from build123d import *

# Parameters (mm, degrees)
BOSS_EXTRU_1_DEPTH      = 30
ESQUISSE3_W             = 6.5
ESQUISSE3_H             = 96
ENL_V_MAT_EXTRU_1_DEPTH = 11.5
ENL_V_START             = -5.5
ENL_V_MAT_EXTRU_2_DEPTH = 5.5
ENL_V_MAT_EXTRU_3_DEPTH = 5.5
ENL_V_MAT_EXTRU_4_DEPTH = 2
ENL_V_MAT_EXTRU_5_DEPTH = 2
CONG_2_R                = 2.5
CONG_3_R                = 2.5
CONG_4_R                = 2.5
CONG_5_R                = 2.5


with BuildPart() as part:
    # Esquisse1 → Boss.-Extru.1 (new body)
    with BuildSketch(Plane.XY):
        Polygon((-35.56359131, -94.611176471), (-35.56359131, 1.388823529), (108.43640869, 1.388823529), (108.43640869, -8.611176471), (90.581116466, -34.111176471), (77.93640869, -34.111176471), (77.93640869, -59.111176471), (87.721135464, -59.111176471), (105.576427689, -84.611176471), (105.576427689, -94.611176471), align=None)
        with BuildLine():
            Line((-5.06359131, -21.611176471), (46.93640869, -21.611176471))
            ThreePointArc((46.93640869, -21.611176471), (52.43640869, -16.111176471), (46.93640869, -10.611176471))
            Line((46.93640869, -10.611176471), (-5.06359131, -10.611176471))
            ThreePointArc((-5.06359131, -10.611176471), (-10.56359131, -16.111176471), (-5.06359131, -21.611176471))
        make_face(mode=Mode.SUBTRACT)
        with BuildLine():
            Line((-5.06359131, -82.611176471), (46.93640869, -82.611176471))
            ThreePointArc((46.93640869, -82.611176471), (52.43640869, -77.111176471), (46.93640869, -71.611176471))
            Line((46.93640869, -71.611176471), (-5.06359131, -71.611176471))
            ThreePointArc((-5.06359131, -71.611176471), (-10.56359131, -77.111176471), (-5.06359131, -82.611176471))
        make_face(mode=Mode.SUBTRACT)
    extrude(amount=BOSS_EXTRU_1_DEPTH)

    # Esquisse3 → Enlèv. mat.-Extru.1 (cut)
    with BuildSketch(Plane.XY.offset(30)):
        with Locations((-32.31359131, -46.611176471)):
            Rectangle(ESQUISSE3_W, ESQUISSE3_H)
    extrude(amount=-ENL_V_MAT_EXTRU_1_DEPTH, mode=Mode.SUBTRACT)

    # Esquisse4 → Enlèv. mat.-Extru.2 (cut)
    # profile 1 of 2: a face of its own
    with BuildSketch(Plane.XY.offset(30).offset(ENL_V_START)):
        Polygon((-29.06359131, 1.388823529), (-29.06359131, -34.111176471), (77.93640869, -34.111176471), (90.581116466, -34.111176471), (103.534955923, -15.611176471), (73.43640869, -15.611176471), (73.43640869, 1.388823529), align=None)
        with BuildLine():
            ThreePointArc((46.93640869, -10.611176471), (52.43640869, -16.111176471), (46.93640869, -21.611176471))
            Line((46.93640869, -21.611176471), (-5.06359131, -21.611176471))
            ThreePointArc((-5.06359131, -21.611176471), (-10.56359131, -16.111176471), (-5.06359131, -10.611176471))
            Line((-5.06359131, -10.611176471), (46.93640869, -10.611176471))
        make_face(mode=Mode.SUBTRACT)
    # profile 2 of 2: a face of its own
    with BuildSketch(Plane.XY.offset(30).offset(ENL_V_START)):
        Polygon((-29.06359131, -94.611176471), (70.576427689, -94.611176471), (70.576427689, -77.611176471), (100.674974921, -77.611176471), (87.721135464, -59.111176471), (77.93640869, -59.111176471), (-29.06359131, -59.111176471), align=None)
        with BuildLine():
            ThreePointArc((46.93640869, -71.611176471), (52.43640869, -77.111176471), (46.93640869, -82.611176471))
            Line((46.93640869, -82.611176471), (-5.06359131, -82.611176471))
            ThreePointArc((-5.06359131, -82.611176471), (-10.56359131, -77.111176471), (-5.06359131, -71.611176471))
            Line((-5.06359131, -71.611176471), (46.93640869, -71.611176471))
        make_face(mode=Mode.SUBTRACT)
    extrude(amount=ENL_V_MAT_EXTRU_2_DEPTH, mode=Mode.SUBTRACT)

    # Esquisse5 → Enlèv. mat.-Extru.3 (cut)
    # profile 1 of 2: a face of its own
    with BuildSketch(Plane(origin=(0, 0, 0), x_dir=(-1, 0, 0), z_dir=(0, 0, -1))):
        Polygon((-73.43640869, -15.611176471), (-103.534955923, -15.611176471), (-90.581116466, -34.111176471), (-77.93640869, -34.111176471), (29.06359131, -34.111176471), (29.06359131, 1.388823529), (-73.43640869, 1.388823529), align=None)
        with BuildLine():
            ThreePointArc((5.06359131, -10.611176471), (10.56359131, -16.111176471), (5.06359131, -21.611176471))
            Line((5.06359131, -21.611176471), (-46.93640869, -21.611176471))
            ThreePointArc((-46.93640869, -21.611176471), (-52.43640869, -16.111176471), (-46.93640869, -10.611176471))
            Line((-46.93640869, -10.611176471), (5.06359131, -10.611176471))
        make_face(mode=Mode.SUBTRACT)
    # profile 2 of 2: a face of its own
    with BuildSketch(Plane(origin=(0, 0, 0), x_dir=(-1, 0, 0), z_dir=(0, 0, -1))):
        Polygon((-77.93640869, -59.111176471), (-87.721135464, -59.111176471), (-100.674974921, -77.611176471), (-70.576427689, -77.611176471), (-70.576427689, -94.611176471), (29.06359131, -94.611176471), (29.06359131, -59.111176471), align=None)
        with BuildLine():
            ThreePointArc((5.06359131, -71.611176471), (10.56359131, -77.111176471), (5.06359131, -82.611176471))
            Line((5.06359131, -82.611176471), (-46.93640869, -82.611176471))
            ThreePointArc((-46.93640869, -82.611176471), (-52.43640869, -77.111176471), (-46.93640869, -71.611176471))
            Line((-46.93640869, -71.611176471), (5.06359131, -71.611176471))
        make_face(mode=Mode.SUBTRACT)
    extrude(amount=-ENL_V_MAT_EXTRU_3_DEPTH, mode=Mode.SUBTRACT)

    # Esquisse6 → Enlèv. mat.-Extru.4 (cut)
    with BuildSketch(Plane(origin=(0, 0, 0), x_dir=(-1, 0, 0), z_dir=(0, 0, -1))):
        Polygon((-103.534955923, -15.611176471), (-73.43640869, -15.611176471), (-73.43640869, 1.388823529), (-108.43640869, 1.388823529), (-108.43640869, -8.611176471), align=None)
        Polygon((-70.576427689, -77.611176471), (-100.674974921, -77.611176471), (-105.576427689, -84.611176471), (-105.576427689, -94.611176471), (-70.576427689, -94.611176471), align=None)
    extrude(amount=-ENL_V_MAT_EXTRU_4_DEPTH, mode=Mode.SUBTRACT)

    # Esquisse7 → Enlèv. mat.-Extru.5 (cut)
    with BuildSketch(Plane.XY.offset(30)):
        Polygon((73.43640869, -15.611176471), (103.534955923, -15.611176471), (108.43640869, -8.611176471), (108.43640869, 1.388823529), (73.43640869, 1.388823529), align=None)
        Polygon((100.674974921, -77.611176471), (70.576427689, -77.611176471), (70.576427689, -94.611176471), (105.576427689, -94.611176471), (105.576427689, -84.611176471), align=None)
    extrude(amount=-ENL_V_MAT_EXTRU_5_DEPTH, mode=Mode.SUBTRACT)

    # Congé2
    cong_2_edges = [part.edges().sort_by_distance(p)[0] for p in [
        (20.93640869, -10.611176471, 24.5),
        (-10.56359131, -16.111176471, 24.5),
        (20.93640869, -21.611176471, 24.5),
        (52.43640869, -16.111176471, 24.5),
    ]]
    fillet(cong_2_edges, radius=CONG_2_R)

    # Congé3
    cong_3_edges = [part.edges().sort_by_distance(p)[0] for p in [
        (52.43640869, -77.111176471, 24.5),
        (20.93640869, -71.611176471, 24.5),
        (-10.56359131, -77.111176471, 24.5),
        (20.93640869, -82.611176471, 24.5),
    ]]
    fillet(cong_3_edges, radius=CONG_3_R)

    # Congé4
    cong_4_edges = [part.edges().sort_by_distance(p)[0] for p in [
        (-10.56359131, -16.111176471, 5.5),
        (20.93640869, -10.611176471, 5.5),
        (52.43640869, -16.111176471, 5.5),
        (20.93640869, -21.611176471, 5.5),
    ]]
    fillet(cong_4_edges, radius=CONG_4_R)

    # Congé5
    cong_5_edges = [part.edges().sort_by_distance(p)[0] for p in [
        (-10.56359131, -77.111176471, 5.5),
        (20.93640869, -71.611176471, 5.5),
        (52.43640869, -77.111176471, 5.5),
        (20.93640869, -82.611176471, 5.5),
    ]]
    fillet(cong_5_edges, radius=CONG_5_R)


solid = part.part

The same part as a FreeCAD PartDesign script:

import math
import FreeCAD as App
import Part
import Sketcher
from FreeCAD import Vector
Q = App.Units.Quantity


def edges_at(feature, points):
    """Names of the edges that pass closest to the given points."""
    edges = feature.Shape.Edges
    near = lambda p: min(range(len(edges)), key=lambda i: edges[i].distToShape(Part.Vertex(*p))[0])
    return sorted({f"Edge{near(p) + 1}" for p in points})

doc = App.newDocument("Part")
body = doc.addObject("PartDesign::Body", "Body")

sketch1 = doc.addObject("Sketcher::SketchObject", "Sketch")
body.addObject(sketch1)
sketch1.AttachmentSupport = (doc.XY_Plane, [""])
sketch1.MapMode = "FlatFace"
sketch1.addGeometry(Part.LineSegment(Vector(-36, 1, 0), Vector(-36, -95, 0)), False)
sketch1.addGeometry(Part.LineSegment(Vector(-36, -95, 0), Vector(106, -95, 0)), False)
sketch1.addGeometry(Part.LineSegment(Vector(106, -95, 0), Vector(106, -85, 0)), False)
sketch1.addGeometry(Part.LineSegment(Vector(106, -85, 0), Vector(88, -59, 0)), False)
sketch1.addGeometry(Part.LineSegment(Vector(88, -59, 0), Vector(78, -59, 0)), False)
sketch1.addGeometry(Part.LineSegment(Vector(78, -59, 0), Vector(78, -34, 0)), False)
sketch1.addGeometry(Part.LineSegment(Vector(78, -34, 0), Vector(91, -34, 0)), False)
sketch1.addGeometry(Part.LineSegment(Vector(91, -34, 0), Vector(108, -9, 0)), False)
sketch1.addGeometry(Part.LineSegment(Vector(108, -9, 0), Vector(108, 1, 0)), False)
sketch1.addGeometry(Part.LineSegment(Vector(108, 1, 0), Vector(-36, 1, 0)), False)
sketch1.addGeometry(Part.ArcOfCircle(Part.Circle(Vector(-5, -77, 0), Vector(0, 0, 1), 6), math.radians(90), math.radians(270)), False)
sketch1.addGeometry(Part.LineSegment(Vector(-5, -72, 0), Vector(47, -72, 0)), False)
sketch1.addGeometry(Part.ArcOfCircle(Part.Circle(Vector(47, -77, 0), Vector(0, 0, 1), 6), math.radians(-90), math.radians(90)), False)
sketch1.addGeometry(Part.LineSegment(Vector(47, -83, 0), Vector(-5, -83, 0)), False)
sketch1.addGeometry(Part.ArcOfCircle(Part.Circle(Vector(-5, -16, 0), Vector(0, 0, 1), 6), math.radians(90), math.radians(270)), False)
sketch1.addGeometry(Part.LineSegment(Vector(-5, -11, 0), Vector(47, -11, 0)), False)
sketch1.addGeometry(Part.ArcOfCircle(Part.Circle(Vector(47, -16, 0), Vector(0, 0, 1), 6), math.radians(-90), math.radians(90)), False)
sketch1.addGeometry(Part.LineSegment(Vector(47, -22, 0), Vector(-5, -22, 0)), False)
sketch1.addConstraint(Sketcher.Constraint("Coincident", 0, 2, 1, 1))
sketch1.addConstraint(Sketcher.Constraint("Coincident", 1, 2, 2, 1))
sketch1.addConstraint(Sketcher.Constraint("Coincident", 2, 2, 3, 1))
sketch1.addConstraint(Sketcher.Constraint("Coincident", 3, 2, 4, 1))
sketch1.addConstraint(Sketcher.Constraint("Coincident", 4, 2, 5, 1))
sketch1.addConstraint(Sketcher.Constraint("Coincident", 5, 2, 6, 1))
sketch1.addConstraint(Sketcher.Constraint("Coincident", 6, 2, 7, 1))
sketch1.addConstraint(Sketcher.Constraint("Coincident", 7, 2, 8, 1))
sketch1.addConstraint(Sketcher.Constraint("Coincident", 8, 2, 9, 1))
sketch1.addConstraint(Sketcher.Constraint("Coincident", 9, 2, 0, 1))
sketch1.addConstraint(Sketcher.Constraint("Tangent", 10, 1, 11, 1))
sketch1.addConstraint(Sketcher.Constraint("Tangent", 11, 2, 12, 2))
sketch1.addConstraint(Sketcher.Constraint("Tangent", 12, 1, 13, 1))
sketch1.addConstraint(Sketcher.Constraint("Tangent", 13, 2, 10, 2))
sketch1.addConstraint(Sketcher.Constraint("Tangent", 14, 1, 15, 1))
sketch1.addConstraint(Sketcher.Constraint("Tangent", 15, 2, 16, 2))
sketch1.addConstraint(Sketcher.Constraint("Tangent", 16, 1, 17, 1))
sketch1.addConstraint(Sketcher.Constraint("Tangent", 17, 2, 14, 2))
sketch1.addConstraint(Sketcher.Constraint("Vertical", 0))
sketch1.addConstraint(Sketcher.Constraint("Horizontal", 1))
sketch1.addConstraint(Sketcher.Constraint("Vertical", 2))
sketch1.addConstraint(Sketcher.Constraint("Horizontal", 4))
sketch1.addConstraint(Sketcher.Constraint("Vertical", 5))
sketch1.addConstraint(Sketcher.Constraint("Horizontal", 6))
sketch1.addConstraint(Sketcher.Constraint("Vertical", 8))
sketch1.addConstraint(Sketcher.Constraint("Horizontal", 9))
sketch1.addConstraint(Sketcher.Constraint("Horizontal", 11))
sketch1.addConstraint(Sketcher.Constraint("Horizontal", 13))
sketch1.addConstraint(Sketcher.Constraint("Horizontal", 15))
sketch1.addConstraint(Sketcher.Constraint("Horizontal", 17))
sketch1.addConstraint(Sketcher.Constraint("Equal", 12, 14))
sketch1.addConstraint(Sketcher.Constraint("Vertical", 10, 3, 14, 3))
sketch1.addConstraint(Sketcher.Constraint("Vertical", 12, 3, 16, 3))
sketch1.addConstraint(Sketcher.Constraint("Equal", 2, 8))
sketch1.addConstraint(Sketcher.Constraint("Equal", 3, 7))
sketch1.addConstraint(Sketcher.Constraint("Radius", 10, 5.5))
sketch1.addConstraint(Sketcher.Constraint("DistanceX", 9, 2, 9, 1, 144.0))
sketch1.addConstraint(Sketcher.Constraint("DistanceX", 11, 1, 11, 2, 52.0))
sketch1.addConstraint(Sketcher.Constraint("DistanceY", 0, 2, 0, 1, 96.0))
sketch1.addConstraint(Sketcher.Constraint("DistanceY", 2, 1, 2, 2, 10.0))
sketch1.addConstraint(Sketcher.Constraint("DistanceY", 5, 1, 5, 2, 25.0))
sketch1.addConstraint(Sketcher.Constraint("Angle", 3, Q("125 deg")))
sketch1.addConstraint(Sketcher.Constraint("Angle", 7, Q("55 deg")))
sketch1.addConstraint(Sketcher.Constraint("DistanceY", 10, 3, 14, 3, 61.0))
sketch1.addConstraint(Sketcher.Constraint("DistanceY", 12, 3, 3, 2, 18.0))
sketch1.addConstraint(Sketcher.Constraint("DistanceX", 12, 3, 4, 2, 31.0))
sketch1.addConstraint(Sketcher.Constraint("DistanceX", 0, 2, 10, 3, 30.5))
sketch1.addConstraint(Sketcher.Constraint("DistanceX", 1, 1, 1, 2, 141.140019))
sketch1.addConstraint(Sketcher.Constraint("DistanceX", 10, 3, -1, 1, 5.063591))
sketch1.addConstraint(Sketcher.Constraint("DistanceY", 10, 3, -1, 1, 77.111176))
pad1 = doc.addObject("PartDesign::Pad", "Pad")
body.addObject(pad1)
pad1.Profile = sketch1
pad1.Length = 30

sketch2 = doc.addObject("Sketcher::SketchObject", "Sketch001")
body.addObject(sketch2)
sketch2.AttachmentSupport = (doc.XY_Plane, [""])
sketch2.MapMode = "FlatFace"
sketch2.AttachmentOffset = App.Placement(Vector(0, 0, 30), App.Rotation())
sketch2.addGeometry(Part.LineSegment(Vector(-36, 1, 0), Vector(-36, -95, 0)), False)
sketch2.addGeometry(Part.LineSegment(Vector(-36, -95, 0), Vector(-29, -95, 0)), False)
sketch2.addGeometry(Part.LineSegment(Vector(-29, -95, 0), Vector(-29, 1, 0)), False)
sketch2.addGeometry(Part.LineSegment(Vector(-29, 1, 0), Vector(-36, 1, 0)), False)
sketch2.addConstraint(Sketcher.Constraint("Coincident", 0, 2, 1, 1))
sketch2.addConstraint(Sketcher.Constraint("Coincident", 1, 2, 2, 1))
sketch2.addConstraint(Sketcher.Constraint("Coincident", 2, 2, 3, 1))
sketch2.addConstraint(Sketcher.Constraint("Coincident", 3, 2, 0, 1))
sketch2.addConstraint(Sketcher.Constraint("Vertical", 0))
sketch2.addConstraint(Sketcher.Constraint("Horizontal", 1))
sketch2.addConstraint(Sketcher.Constraint("Vertical", 2))
sketch2.addConstraint(Sketcher.Constraint("Horizontal", 3))
sketch2.addConstraint(Sketcher.Constraint("DistanceY", 0, 2, 0, 1, 96.0))
sketch2.addConstraint(Sketcher.Constraint("DistanceX", 1, 1, 1, 2, 6.5))
sketch2.addConstraint(Sketcher.Constraint("DistanceX", 0, 2, -1, 1, 35.563591))
sketch2.addConstraint(Sketcher.Constraint("DistanceY", 0, 2, -1, 1, 94.611176))
pocket1 = doc.addObject("PartDesign::Pocket", "Pocket")
body.addObject(pocket1)
pocket1.Profile = sketch2
pocket1.Length = 11.5

sketch3 = doc.addObject("Sketcher::SketchObject", "Sketch002")
body.addObject(sketch3)
sketch3.AttachmentSupport = (doc.XY_Plane, [""])
sketch3.MapMode = "FlatFace"
sketch3.AttachmentOffset = App.Placement(Vector(0, 0, 24.5), App.Rotation())
sketch3.addGeometry(Part.LineSegment(Vector(-29, 1, 0), Vector(-29, -34, 0)), False)
sketch3.addGeometry(Part.LineSegment(Vector(-29, -34, 0), Vector(91, -34, 0)), False)
sketch3.addGeometry(Part.LineSegment(Vector(91, -34, 0), Vector(104, -16, 0)), False)
sketch3.addGeometry(Part.LineSegment(Vector(104, -16, 0), Vector(73, -16, 0)), False)
sketch3.addGeometry(Part.LineSegment(Vector(73, -16, 0), Vector(73, 1, 0)), False)
sketch3.addGeometry(Part.LineSegment(Vector(73, 1, 0), Vector(-29, 1, 0)), False)
sketch3.addGeometry(Part.LineSegment(Vector(-5, -11, 0), Vector(47, -11, 0)), False)
sketch3.addGeometry(Part.ArcOfCircle(Part.Circle(Vector(47, -16, 0), Vector(0, 0, 1), 6), math.radians(-90), math.radians(90)), False)
sketch3.addGeometry(Part.LineSegment(Vector(47, -22, 0), Vector(-5, -22, 0)), False)
sketch3.addGeometry(Part.ArcOfCircle(Part.Circle(Vector(-5, -16, 0), Vector(0, 0, 1), 6), math.radians(90), math.radians(270)), False)
sketch3.addGeometry(Part.LineSegment(Vector(-29, -95, 0), Vector(71, -95, 0)), False)
sketch3.addGeometry(Part.LineSegment(Vector(71, -95, 0), Vector(71, -78, 0)), False)
sketch3.addGeometry(Part.LineSegment(Vector(71, -78, 0), Vector(101, -78, 0)), False)
sketch3.addGeometry(Part.LineSegment(Vector(101, -78, 0), Vector(88, -59, 0)), False)
sketch3.addGeometry(Part.LineSegment(Vector(88, -59, 0), Vector(-29, -59, 0)), False)
sketch3.addGeometry(Part.LineSegment(Vector(-29, -59, 0), Vector(-29, -95, 0)), False)
sketch3.addGeometry(Part.LineSegment(Vector(-5, -72, 0), Vector(47, -72, 0)), False)
sketch3.addGeometry(Part.ArcOfCircle(Part.Circle(Vector(47, -77, 0), Vector(0, 0, 1), 6), math.radians(-90), math.radians(90)), False)
sketch3.addGeometry(Part.LineSegment(Vector(47, -83, 0), Vector(-5, -83, 0)), False)
sketch3.addGeometry(Part.ArcOfCircle(Part.Circle(Vector(-5, -77, 0), Vector(0, 0, 1), 6), math.radians(90), math.radians(270)), False)
sketch3.addConstraint(Sketcher.Constraint("Coincident", 0, 2, 1, 1))
sketch3.addConstraint(Sketcher.Constraint("Coincident", 1, 2, 2, 1))
sketch3.addConstraint(Sketcher.Constraint("Coincident", 2, 2, 3, 1))
sketch3.addConstraint(Sketcher.Constraint("Coincident", 3, 2, 4, 1))
sketch3.addConstraint(Sketcher.Constraint("Coincident", 4, 2, 5, 1))
sketch3.addConstraint(Sketcher.Constraint("Coincident", 5, 2, 0, 1))
sketch3.addConstraint(Sketcher.Constraint("Tangent", 6, 2, 7, 2))
sketch3.addConstraint(Sketcher.Constraint("Tangent", 7, 1, 8, 1))
sketch3.addConstraint(Sketcher.Constraint("Tangent", 8, 2, 9, 2))
sketch3.addConstraint(Sketcher.Constraint("Tangent", 9, 1, 6, 1))
sketch3.addConstraint(Sketcher.Constraint("Coincident", 10, 2, 11, 1))
sketch3.addConstraint(Sketcher.Constraint("Coincident", 11, 2, 12, 1))
sketch3.addConstraint(Sketcher.Constraint("Coincident", 12, 2, 13, 1))
sketch3.addConstraint(Sketcher.Constraint("Coincident", 13, 2, 14, 1))
sketch3.addConstraint(Sketcher.Constraint("Coincident", 14, 2, 15, 1))
sketch3.addConstraint(Sketcher.Constraint("Coincident", 15, 2, 10, 1))
sketch3.addConstraint(Sketcher.Constraint("Tangent", 16, 2, 17, 2))
sketch3.addConstraint(Sketcher.Constraint("Tangent", 17, 1, 18, 1))
sketch3.addConstraint(Sketcher.Constraint("Tangent", 18, 2, 19, 2))
sketch3.addConstraint(Sketcher.Constraint("Tangent", 19, 1, 16, 1))
sketch3.addConstraint(Sketcher.Constraint("Vertical", 0))
sketch3.addConstraint(Sketcher.Constraint("Horizontal", 1))
sketch3.addConstraint(Sketcher.Constraint("Horizontal", 3))
sketch3.addConstraint(Sketcher.Constraint("Vertical", 4))
sketch3.addConstraint(Sketcher.Constraint("Horizontal", 5))
sketch3.addConstraint(Sketcher.Constraint("Horizontal", 6))
sketch3.addConstraint(Sketcher.Constraint("Horizontal", 8))
sketch3.addConstraint(Sketcher.Constraint("Horizontal", 10))
sketch3.addConstraint(Sketcher.Constraint("Vertical", 11))
sketch3.addConstraint(Sketcher.Constraint("Horizontal", 12))
sketch3.addConstraint(Sketcher.Constraint("Horizontal", 14))
sketch3.addConstraint(Sketcher.Constraint("Vertical", 15))
sketch3.addConstraint(Sketcher.Constraint("Horizontal", 16))
sketch3.addConstraint(Sketcher.Constraint("Horizontal", 18))
sketch3.addConstraint(Sketcher.Constraint("Equal", 9, 17))
sketch3.addConstraint(Sketcher.Constraint("Vertical", 7, 3, 17, 3))
sketch3.addConstraint(Sketcher.Constraint("Vertical", 9, 3, 19, 3))
sketch3.addConstraint(Sketcher.Constraint("Vertical", 5, 2, 14, 2))
sketch3.addConstraint(Sketcher.Constraint("Equal", 3, 12))
sketch3.addConstraint(Sketcher.Constraint("Equal", 4, 11))
sketch3.addConstraint(Sketcher.Constraint("Equal", 0, 15))
sketch3.addConstraint(Sketcher.Constraint("Equal", 2, 13))
sketch3.addConstraint(Sketcher.Constraint("Radius", 7, 5.5))
sketch3.addConstraint(Sketcher.Constraint("DistanceX", 6, 1, 6, 2, 52.0))
sketch3.addConstraint(Sketcher.Constraint("DistanceY", 4, 1, 4, 2, 17.0))
sketch3.addConstraint(Sketcher.Constraint("Angle", 2, Q("55 deg")))
sketch3.addConstraint(Sketcher.Constraint("DistanceX", 5, 2, 5, 1, 102.5))
sketch3.addConstraint(Sketcher.Constraint("DistanceY", 0, 2, 0, 1, 35.5))
sketch3.addConstraint(Sketcher.Constraint("DistanceY", 17, 3, 7, 3, 61.0))
sketch3.addConstraint(Sketcher.Constraint("DistanceX", 0, 2, 9, 3, 24.0))
sketch3.addConstraint(Sketcher.Constraint("DistanceY", 0, 2, 9, 3, 18.0))
sketch3.addConstraint(Sketcher.Constraint("DistanceY", 10, 2, 7, 1, 73.0))
sketch3.addConstraint(Sketcher.Constraint("DistanceX", 10, 1, 10, 2, 99.640019))
sketch3.addConstraint(Sketcher.Constraint("DistanceX", 1, 1, 1, 2, 119.644708))
sketch3.addConstraint(Sketcher.Constraint("DistanceX", -1, 1, 7, 3, 46.936409))
sketch3.addConstraint(Sketcher.Constraint("DistanceY", 7, 3, -1, 1, 16.111176))
pocket2 = doc.addObject("PartDesign::Pocket", "Pocket001")
body.addObject(pocket2)
pocket2.Profile = sketch3
pocket2.Length = 5.5
pocket2.Reversed = True

sketch4 = doc.addObject("Sketcher::SketchObject", "Sketch003")
body.addObject(sketch4)
sketch4.AttachmentSupport = (doc.XY_Plane, [""])
sketch4.MapMode = "FlatFace"
sketch4.addGeometry(Part.LineSegment(Vector(73, -16, 0), Vector(104, -16, 0)), False)
sketch4.addGeometry(Part.LineSegment(Vector(104, -16, 0), Vector(91, -34, 0)), False)
sketch4.addGeometry(Part.LineSegment(Vector(91, -34, 0), Vector(-29, -34, 0)), False)
sketch4.addGeometry(Part.LineSegment(Vector(-29, -34, 0), Vector(-29, 1, 0)), False)
sketch4.addGeometry(Part.LineSegment(Vector(-29, 1, 0), Vector(73, 1, 0)), False)
sketch4.addGeometry(Part.LineSegment(Vector(73, 1, 0), Vector(73, -16, 0)), False)
sketch4.addGeometry(Part.LineSegment(Vector(47, -11, 0), Vector(-5, -11, 0)), False)
sketch4.addGeometry(Part.ArcOfCircle(Part.Circle(Vector(-5, -16, 0), Vector(0, 0, 1), 6), math.radians(90), math.radians(270)), False)
sketch4.addGeometry(Part.LineSegment(Vector(-5, -22, 0), Vector(47, -22, 0)), False)
sketch4.addGeometry(Part.ArcOfCircle(Part.Circle(Vector(47, -16, 0), Vector(0, 0, 1), 6), math.radians(-90), math.radians(90)), False)
sketch4.addGeometry(Part.LineSegment(Vector(88, -59, 0), Vector(101, -78, 0)), False)
sketch4.addGeometry(Part.LineSegment(Vector(101, -78, 0), Vector(71, -78, 0)), False)
sketch4.addGeometry(Part.LineSegment(Vector(71, -78, 0), Vector(71, -95, 0)), False)
sketch4.addGeometry(Part.LineSegment(Vector(71, -95, 0), Vector(-29, -95, 0)), False)
sketch4.addGeometry(Part.LineSegment(Vector(-29, -95, 0), Vector(-29, -59, 0)), False)
sketch4.addGeometry(Part.LineSegment(Vector(-29, -59, 0), Vector(88, -59, 0)), False)
sketch4.addGeometry(Part.LineSegment(Vector(47, -72, 0), Vector(-5, -72, 0)), False)
sketch4.addGeometry(Part.ArcOfCircle(Part.Circle(Vector(-5, -77, 0), Vector(0, 0, 1), 6), math.radians(90), math.radians(270)), False)
sketch4.addGeometry(Part.LineSegment(Vector(-5, -83, 0), Vector(47, -83, 0)), False)
sketch4.addGeometry(Part.ArcOfCircle(Part.Circle(Vector(47, -77, 0), Vector(0, 0, 1), 6), math.radians(-90), math.radians(90)), False)
sketch4.addConstraint(Sketcher.Constraint("Coincident", 0, 2, 1, 1))
sketch4.addConstraint(Sketcher.Constraint("Coincident", 1, 2, 2, 1))
sketch4.addConstraint(Sketcher.Constraint("Coincident", 2, 2, 3, 1))
sketch4.addConstraint(Sketcher.Constraint("Coincident", 3, 2, 4, 1))
sketch4.addConstraint(Sketcher.Constraint("Coincident", 4, 2, 5, 1))
sketch4.addConstraint(Sketcher.Constraint("Coincident", 5, 2, 0, 1))
sketch4.addConstraint(Sketcher.Constraint("Tangent", 6, 2, 7, 1))
sketch4.addConstraint(Sketcher.Constraint("Tangent", 7, 2, 8, 1))
sketch4.addConstraint(Sketcher.Constraint("Tangent", 8, 2, 9, 1))
sketch4.addConstraint(Sketcher.Constraint("Tangent", 9, 2, 6, 1))
sketch4.addConstraint(Sketcher.Constraint("Coincident", 10, 2, 11, 1))
sketch4.addConstraint(Sketcher.Constraint("Coincident", 11, 2, 12, 1))
sketch4.addConstraint(Sketcher.Constraint("Coincident", 12, 2, 13, 1))
sketch4.addConstraint(Sketcher.Constraint("Coincident", 13, 2, 14, 1))
sketch4.addConstraint(Sketcher.Constraint("Coincident", 14, 2, 15, 1))
sketch4.addConstraint(Sketcher.Constraint("Coincident", 15, 2, 10, 1))
sketch4.addConstraint(Sketcher.Constraint("Tangent", 16, 2, 17, 1))
sketch4.addConstraint(Sketcher.Constraint("Tangent", 17, 2, 18, 1))
sketch4.addConstraint(Sketcher.Constraint("Tangent", 18, 2, 19, 1))
sketch4.addConstraint(Sketcher.Constraint("Tangent", 19, 2, 16, 1))
sketch4.addConstraint(Sketcher.Constraint("Horizontal", 0))
sketch4.addConstraint(Sketcher.Constraint("Horizontal", 2))
sketch4.addConstraint(Sketcher.Constraint("Vertical", 3))
sketch4.addConstraint(Sketcher.Constraint("Horizontal", 4))
sketch4.addConstraint(Sketcher.Constraint("Vertical", 5))
sketch4.addConstraint(Sketcher.Constraint("Horizontal", 6))
sketch4.addConstraint(Sketcher.Constraint("Horizontal", 8))
sketch4.addConstraint(Sketcher.Constraint("Horizontal", 11))
sketch4.addConstraint(Sketcher.Constraint("Vertical", 12))
sketch4.addConstraint(Sketcher.Constraint("Horizontal", 13))
sketch4.addConstraint(Sketcher.Constraint("Vertical", 14))
sketch4.addConstraint(Sketcher.Constraint("Horizontal", 15))
sketch4.addConstraint(Sketcher.Constraint("Horizontal", 16))
sketch4.addConstraint(Sketcher.Constraint("Horizontal", 18))
sketch4.addConstraint(Sketcher.Constraint("Equal", 9, 17))
sketch4.addConstraint(Sketcher.Constraint("Vertical", 7, 3, 17, 3))
sketch4.addConstraint(Sketcher.Constraint("Vertical", 9, 3, 19, 3))
sketch4.addConstraint(Sketcher.Constraint("Vertical", 3, 2, 13, 2))
sketch4.addConstraint(Sketcher.Constraint("Equal", 0, 11))
sketch4.addConstraint(Sketcher.Constraint("Equal", 5, 12))
sketch4.addConstraint(Sketcher.Constraint("Equal", 3, 14))
sketch4.addConstraint(Sketcher.Constraint("Equal", 1, 10))
sketch4.addConstraint(Sketcher.Constraint("Radius", 7, 5.5))
sketch4.addConstraint(Sketcher.Constraint("DistanceX", 6, 2, 6, 1, 52.0))
sketch4.addConstraint(Sketcher.Constraint("DistanceY", 5, 2, 5, 1, 17.0))
sketch4.addConstraint(Sketcher.Constraint("Angle", 1, Q("-125 deg")))
sketch4.addConstraint(Sketcher.Constraint("DistanceX", 4, 1, 4, 2, 102.5))
sketch4.addConstraint(Sketcher.Constraint("DistanceY", 3, 1, 3, 2, 35.5))
sketch4.addConstraint(Sketcher.Constraint("DistanceY", 17, 3, 7, 3, 61.0))
sketch4.addConstraint(Sketcher.Constraint("DistanceY", 1, 2, 9, 3, 18.0))
sketch4.addConstraint(Sketcher.Constraint("DistanceX", 2, 2, 7, 3, 24.0))
sketch4.addConstraint(Sketcher.Constraint("DistanceY", 10, 2, 0, 2, 62.0))
sketch4.addConstraint(Sketcher.Constraint("DistanceX", 13, 2, 13, 1, 99.640019))
sketch4.addConstraint(Sketcher.Constraint("DistanceX", 0, 1, 0, 2, 30.098547))
sketch4.addConstraint(Sketcher.Constraint("DistanceX", 7, 3, -1, 1, 5.063591))
sketch4.addConstraint(Sketcher.Constraint("DistanceY", 7, 3, -1, 1, 16.111176))
pocket3 = doc.addObject("PartDesign::Pocket", "Pocket002")
body.addObject(pocket3)
pocket3.Profile = sketch4
pocket3.Length = 5.5
pocket3.Reversed = True

sketch5 = doc.addObject("Sketcher::SketchObject", "Sketch004")
body.addObject(sketch5)
sketch5.AttachmentSupport = (doc.XY_Plane, [""])
sketch5.MapMode = "FlatFace"
sketch5.addGeometry(Part.LineSegment(Vector(104, -16, 0), Vector(73, -16, 0)), False)
sketch5.addGeometry(Part.LineSegment(Vector(73, -16, 0), Vector(73, 1, 0)), False)
sketch5.addGeometry(Part.LineSegment(Vector(73, 1, 0), Vector(108, 1, 0)), False)
sketch5.addGeometry(Part.LineSegment(Vector(108, 1, 0), Vector(108, -9, 0)), False)
sketch5.addGeometry(Part.LineSegment(Vector(108, -9, 0), Vector(104, -16, 0)), False)
sketch5.addGeometry(Part.LineSegment(Vector(71, -78, 0), Vector(101, -78, 0)), False)
sketch5.addGeometry(Part.LineSegment(Vector(101, -78, 0), Vector(106, -85, 0)), False)
sketch5.addGeometry(Part.LineSegment(Vector(106, -85, 0), Vector(106, -95, 0)), False)
sketch5.addGeometry(Part.LineSegment(Vector(106, -95, 0), Vector(71, -95, 0)), False)
sketch5.addGeometry(Part.LineSegment(Vector(71, -95, 0), Vector(71, -78, 0)), False)
sketch5.addConstraint(Sketcher.Constraint("Coincident", 0, 2, 1, 1))
sketch5.addConstraint(Sketcher.Constraint("Coincident", 1, 2, 2, 1))
sketch5.addConstraint(Sketcher.Constraint("Coincident", 2, 2, 3, 1))
sketch5.addConstraint(Sketcher.Constraint("Coincident", 3, 2, 4, 1))
sketch5.addConstraint(Sketcher.Constraint("Coincident", 4, 2, 0, 1))
sketch5.addConstraint(Sketcher.Constraint("Coincident", 5, 2, 6, 1))
sketch5.addConstraint(Sketcher.Constraint("Coincident", 6, 2, 7, 1))
sketch5.addConstraint(Sketcher.Constraint("Coincident", 7, 2, 8, 1))
sketch5.addConstraint(Sketcher.Constraint("Coincident", 8, 2, 9, 1))
sketch5.addConstraint(Sketcher.Constraint("Coincident", 9, 2, 5, 1))
sketch5.addConstraint(Sketcher.Constraint("Horizontal", 0))
sketch5.addConstraint(Sketcher.Constraint("Vertical", 1))
sketch5.addConstraint(Sketcher.Constraint("Horizontal", 2))
sketch5.addConstraint(Sketcher.Constraint("Vertical", 3))
sketch5.addConstraint(Sketcher.Constraint("Horizontal", 5))
sketch5.addConstraint(Sketcher.Constraint("Vertical", 7))
sketch5.addConstraint(Sketcher.Constraint("Horizontal", 8))
sketch5.addConstraint(Sketcher.Constraint("Vertical", 9))
sketch5.addConstraint(Sketcher.Constraint("Equal", 0, 5))
sketch5.addConstraint(Sketcher.Constraint("Equal", 2, 8))
sketch5.addConstraint(Sketcher.Constraint("Equal", 3, 7))
sketch5.addConstraint(Sketcher.Constraint("Equal", 1, 9))
sketch5.addConstraint(Sketcher.Constraint("DistanceX", 2, 1, 2, 2, 35.0))
sketch5.addConstraint(Sketcher.Constraint("DistanceY", 1, 1, 1, 2, 17.0))
sketch5.addConstraint(Sketcher.Constraint("DistanceY", 3, 2, 3, 1, 10.0))
sketch5.addConstraint(Sketcher.Constraint("Angle", 4, Q("-125 deg")))
sketch5.addConstraint(Sketcher.Constraint("DistanceY", 5, 2, 4, 2, 62.0))
sketch5.addConstraint(Sketcher.Constraint("DistanceX", -1, 1, 0, 2, 73.436409))
sketch5.addConstraint(Sketcher.Constraint("DistanceX", 5, 2, 4, 2, 2.859981))
sketch5.addConstraint(Sketcher.Constraint("DistanceY", 0, 2, -1, 1, 15.611176))
pocket4 = doc.addObject("PartDesign::Pocket", "Pocket003")
body.addObject(pocket4)
pocket4.Profile = sketch5
pocket4.Length = 2
pocket4.Reversed = True

sketch6 = doc.addObject("Sketcher::SketchObject", "Sketch005")
body.addObject(sketch6)
sketch6.AttachmentSupport = (doc.XY_Plane, [""])
sketch6.MapMode = "FlatFace"
sketch6.AttachmentOffset = App.Placement(Vector(0, 0, 30), App.Rotation())
sketch6.addGeometry(Part.LineSegment(Vector(73, -16, 0), Vector(104, -16, 0)), False)
sketch6.addGeometry(Part.LineSegment(Vector(104, -16, 0), Vector(108, -9, 0)), False)
sketch6.addGeometry(Part.LineSegment(Vector(108, -9, 0), Vector(108, 1, 0)), False)
sketch6.addGeometry(Part.LineSegment(Vector(108, 1, 0), Vector(73, 1, 0)), False)
sketch6.addGeometry(Part.LineSegment(Vector(73, 1, 0), Vector(73, -16, 0)), False)
sketch6.addGeometry(Part.LineSegment(Vector(101, -78, 0), Vector(71, -78, 0)), False)
sketch6.addGeometry(Part.LineSegment(Vector(71, -78, 0), Vector(71, -95, 0)), False)
sketch6.addGeometry(Part.LineSegment(Vector(71, -95, 0), Vector(106, -95, 0)), False)
sketch6.addGeometry(Part.LineSegment(Vector(106, -95, 0), Vector(106, -85, 0)), False)
sketch6.addGeometry(Part.LineSegment(Vector(106, -85, 0), Vector(101, -78, 0)), False)
sketch6.addConstraint(Sketcher.Constraint("Coincident", 0, 2, 1, 1))
sketch6.addConstraint(Sketcher.Constraint("Coincident", 1, 2, 2, 1))
sketch6.addConstraint(Sketcher.Constraint("Coincident", 2, 2, 3, 1))
sketch6.addConstraint(Sketcher.Constraint("Coincident", 3, 2, 4, 1))
sketch6.addConstraint(Sketcher.Constraint("Coincident", 4, 2, 0, 1))
sketch6.addConstraint(Sketcher.Constraint("Coincident", 5, 2, 6, 1))
sketch6.addConstraint(Sketcher.Constraint("Coincident", 6, 2, 7, 1))
sketch6.addConstraint(Sketcher.Constraint("Coincident", 7, 2, 8, 1))
sketch6.addConstraint(Sketcher.Constraint("Coincident", 8, 2, 9, 1))
sketch6.addConstraint(Sketcher.Constraint("Coincident", 9, 2, 5, 1))
sketch6.addConstraint(Sketcher.Constraint("Horizontal", 0))
sketch6.addConstraint(Sketcher.Constraint("Vertical", 2))
sketch6.addConstraint(Sketcher.Constraint("Horizontal", 3))
sketch6.addConstraint(Sketcher.Constraint("Vertical", 4))
sketch6.addConstraint(Sketcher.Constraint("Horizontal", 5))
sketch6.addConstraint(Sketcher.Constraint("Vertical", 6))
sketch6.addConstraint(Sketcher.Constraint("Horizontal", 7))
sketch6.addConstraint(Sketcher.Constraint("Vertical", 8))
sketch6.addConstraint(Sketcher.Constraint("Equal", 0, 5))
sketch6.addConstraint(Sketcher.Constraint("Equal", 3, 7))
sketch6.addConstraint(Sketcher.Constraint("Equal", 4, 6))
sketch6.addConstraint(Sketcher.Constraint("Equal", 2, 8))
sketch6.addConstraint(Sketcher.Constraint("DistanceX", 3, 2, 3, 1, 35.0))
sketch6.addConstraint(Sketcher.Constraint("DistanceY", 2, 1, 2, 2, 10.0))
sketch6.addConstraint(Sketcher.Constraint("DistanceY", 4, 2, 4, 1, 17.0))
sketch6.addConstraint(Sketcher.Constraint("Angle", 1, Q("55 deg")))
sketch6.addConstraint(Sketcher.Constraint("DistanceY", 5, 2, 4, 2, 62.0))
sketch6.addConstraint(Sketcher.Constraint("DistanceX", -1, 1, 1, 2, 108.436409))
sketch6.addConstraint(Sketcher.Constraint("DistanceX", 5, 2, 4, 2, 2.859981))
sketch6.addConstraint(Sketcher.Constraint("DistanceY", 0, 2, -1, 1, 15.611176))
pocket5 = doc.addObject("PartDesign::Pocket", "Pocket004")
body.addObject(pocket5)
pocket5.Profile = sketch6
pocket5.Length = 2
doc.recompute()

fillet = doc.addObject("PartDesign::Fillet", "Fillet")
body.addObject(fillet)
fillet.Base = (pocket5, edges_at(pocket5, [
    (20.936, -10.611, 24.5),
    (-10.564, -16.111, 24.5),
    (20.936, -21.611, 24.5),
    (52.436, -16.111, 24.5),
]))
fillet.Radius = 2.5
doc.recompute()

fillet2 = doc.addObject("PartDesign::Fillet", "Fillet001")
body.addObject(fillet2)
fillet2.Base = (fillet, edges_at(fillet, [
    (52.436, -77.111, 24.5),
    (20.936, -71.611, 24.5),
    (-10.564, -77.111, 24.5),
    (20.936, -82.611, 24.5),
]))
fillet2.Radius = 2.5
doc.recompute()

fillet3 = doc.addObject("PartDesign::Fillet", "Fillet002")
body.addObject(fillet3)
fillet3.Base = (fillet2, edges_at(fillet2, [
    (-10.564, -16.111, 5.5),
    (20.936, -10.611, 5.5),
    (52.436, -16.111, 5.5),
    (20.936, -21.611, 5.5),
]))
fillet3.Radius = 2.5
doc.recompute()

fillet4 = doc.addObject("PartDesign::Fillet", "Fillet003")
body.addObject(fillet4)
fillet4.Base = (fillet3, edges_at(fillet3, [
    (-10.564, -77.111, 5.5),
    (20.936, -71.611, 5.5),
    (52.436, -77.111, 5.5),
    (20.936, -82.611, 5.5),
]))
fillet4.Radius = 2.5

doc.recompute()
